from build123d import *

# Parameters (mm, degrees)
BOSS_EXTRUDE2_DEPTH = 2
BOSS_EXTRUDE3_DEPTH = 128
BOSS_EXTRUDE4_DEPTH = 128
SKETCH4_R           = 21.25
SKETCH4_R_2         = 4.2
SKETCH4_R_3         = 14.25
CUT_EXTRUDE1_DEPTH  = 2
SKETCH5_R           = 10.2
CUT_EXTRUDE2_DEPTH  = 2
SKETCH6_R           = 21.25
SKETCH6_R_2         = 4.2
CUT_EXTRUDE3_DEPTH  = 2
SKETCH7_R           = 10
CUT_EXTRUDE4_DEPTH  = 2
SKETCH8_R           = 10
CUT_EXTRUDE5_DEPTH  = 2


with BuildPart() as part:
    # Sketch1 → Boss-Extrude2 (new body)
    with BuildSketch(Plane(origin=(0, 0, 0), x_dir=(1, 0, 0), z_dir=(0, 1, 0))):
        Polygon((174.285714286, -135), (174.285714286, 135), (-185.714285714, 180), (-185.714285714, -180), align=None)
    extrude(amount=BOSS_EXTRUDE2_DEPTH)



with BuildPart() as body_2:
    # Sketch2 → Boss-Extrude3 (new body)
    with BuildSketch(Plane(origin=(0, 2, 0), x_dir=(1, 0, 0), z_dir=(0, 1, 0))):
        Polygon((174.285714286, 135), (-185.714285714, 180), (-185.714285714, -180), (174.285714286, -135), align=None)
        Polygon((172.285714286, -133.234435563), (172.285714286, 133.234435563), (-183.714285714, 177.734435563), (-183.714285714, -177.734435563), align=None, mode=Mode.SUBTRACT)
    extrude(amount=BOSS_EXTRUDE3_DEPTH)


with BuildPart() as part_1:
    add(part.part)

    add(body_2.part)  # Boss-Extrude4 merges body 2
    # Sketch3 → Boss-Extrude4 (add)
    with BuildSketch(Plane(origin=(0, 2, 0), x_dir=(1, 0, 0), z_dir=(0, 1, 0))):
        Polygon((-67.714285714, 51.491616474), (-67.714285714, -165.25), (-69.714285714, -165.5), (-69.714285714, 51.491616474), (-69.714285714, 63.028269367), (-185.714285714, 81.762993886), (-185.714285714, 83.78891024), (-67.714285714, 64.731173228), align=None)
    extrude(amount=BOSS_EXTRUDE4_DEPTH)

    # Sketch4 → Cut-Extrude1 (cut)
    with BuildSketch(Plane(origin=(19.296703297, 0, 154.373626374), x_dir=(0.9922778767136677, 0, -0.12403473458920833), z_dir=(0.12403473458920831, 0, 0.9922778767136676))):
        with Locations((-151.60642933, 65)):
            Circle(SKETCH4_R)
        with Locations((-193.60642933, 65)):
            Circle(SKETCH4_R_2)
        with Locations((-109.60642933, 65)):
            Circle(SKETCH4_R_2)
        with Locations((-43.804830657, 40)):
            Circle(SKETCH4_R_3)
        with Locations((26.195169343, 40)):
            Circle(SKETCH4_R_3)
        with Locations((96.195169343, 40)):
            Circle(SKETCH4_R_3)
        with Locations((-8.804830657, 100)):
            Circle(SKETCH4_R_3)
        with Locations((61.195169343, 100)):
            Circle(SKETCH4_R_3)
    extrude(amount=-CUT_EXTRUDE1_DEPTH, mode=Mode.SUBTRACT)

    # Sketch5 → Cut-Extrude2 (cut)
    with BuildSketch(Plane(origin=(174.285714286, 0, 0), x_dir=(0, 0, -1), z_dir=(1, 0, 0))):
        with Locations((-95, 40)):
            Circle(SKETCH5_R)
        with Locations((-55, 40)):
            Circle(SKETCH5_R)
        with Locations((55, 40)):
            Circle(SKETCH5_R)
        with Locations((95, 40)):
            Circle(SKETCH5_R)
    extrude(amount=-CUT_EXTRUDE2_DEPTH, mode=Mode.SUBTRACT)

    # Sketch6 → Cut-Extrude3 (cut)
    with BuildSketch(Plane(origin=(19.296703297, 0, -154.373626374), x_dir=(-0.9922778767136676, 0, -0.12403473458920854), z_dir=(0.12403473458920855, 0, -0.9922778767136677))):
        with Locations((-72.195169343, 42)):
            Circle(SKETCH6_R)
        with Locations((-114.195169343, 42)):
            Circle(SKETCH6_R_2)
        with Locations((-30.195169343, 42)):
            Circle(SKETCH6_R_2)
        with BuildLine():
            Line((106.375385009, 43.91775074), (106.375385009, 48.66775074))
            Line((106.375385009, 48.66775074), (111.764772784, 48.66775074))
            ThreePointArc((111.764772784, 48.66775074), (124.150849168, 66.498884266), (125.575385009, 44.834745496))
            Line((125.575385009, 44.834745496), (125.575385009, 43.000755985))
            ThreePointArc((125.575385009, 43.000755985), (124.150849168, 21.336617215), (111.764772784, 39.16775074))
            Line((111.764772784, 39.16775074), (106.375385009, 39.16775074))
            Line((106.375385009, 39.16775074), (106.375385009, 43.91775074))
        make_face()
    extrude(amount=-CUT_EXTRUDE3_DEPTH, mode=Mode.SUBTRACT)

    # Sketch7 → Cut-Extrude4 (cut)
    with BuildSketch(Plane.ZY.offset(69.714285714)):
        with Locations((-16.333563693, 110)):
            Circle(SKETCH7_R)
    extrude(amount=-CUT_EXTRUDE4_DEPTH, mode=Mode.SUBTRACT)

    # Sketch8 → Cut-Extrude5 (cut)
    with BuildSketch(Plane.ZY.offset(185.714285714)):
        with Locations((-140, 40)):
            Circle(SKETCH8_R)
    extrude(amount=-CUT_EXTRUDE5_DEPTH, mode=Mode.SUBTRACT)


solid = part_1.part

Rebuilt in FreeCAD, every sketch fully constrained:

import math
import FreeCAD as App
import Part
import Sketcher
from FreeCAD import Vector
Q = App.Units.Quantity

doc = App.newDocument("Part")
body = doc.addObject("PartDesign::Body", "Body")

# Sketch on XZ plane
sketch1 = doc.addObject("Sketcher::SketchObject", "Sketch")
body.addObject(sketch1)
sketch1.AttachmentSupport = (doc.XZ_Plane, [""])
sketch1.MapMode = "FlatFace"
sketch1.addGeometry(Part.LineSegment(Vector(174, 135, 0), Vector(174, -135, 0)), False)
sketch1.addGeometry(Part.LineSegment(Vector(174, -135, 0), Vector(-186, -180, 0)), False)
sketch1.addGeometry(Part.LineSegment(Vector(-186, -180, 0), Vector(-186, 180, 0)), False)
sketch1.addGeometry(Part.LineSegment(Vector(-186, 180, 0), Vector(174, 135, 0)), False)
sketch1.addConstraint(Sketcher.Constraint("Coincident", 0, 2, 1, 1))
sketch1.addConstraint(Sketcher.Constraint("Coincident", 1, 2, 2, 1))
sketch1.addConstraint(Sketcher.Constraint("Coincident", 2, 2, 3, 1))
sketch1.addConstraint(Sketcher.Constraint("Coincident", 3, 2, 0, 1))
sketch1.addConstraint(Sketcher.Constraint("Vertical", 0))
sketch1.addConstraint(Sketcher.Constraint("Vertical", 2))
sketch1.addConstraint(Sketcher.Constraint("Equal", 1, 3))
sketch1.addConstraint(Sketcher.Constraint("DistanceY", 0, 2, 0, 1, Q("270 mm")))
sketch1.addConstraint(Sketcher.Constraint("DistanceY", 2, 1, 2, 2, Q("360 mm")))
sketch1.addConstraint(Sketcher.Constraint("DistanceY", 0, 2, -1, 1, Q("135 mm")))
sketch1.addConstraint(Sketcher.Constraint("DistanceX", 1, 2, 0, 2, Q("360 mm")))
sketch1.addConstraint(Sketcher.Constraint("DistanceX", -1, 1, 0, 2, Q("174.285714 mm")))
pad1 = doc.addObject("PartDesign::Pad", "Pad")
body.addObject(pad1)
pad1.Profile = sketch1
pad1.Length = 2
pad1.Reversed = True
body2 = doc.addObject("PartDesign::Body", "Body001")

# Sketch on XZ plane
sketch2 = doc.addObject("Sketcher::SketchObject", "Sketch001")
body2.addObject(sketch2)
sketch2.AttachmentSupport = (doc.getObject("XZ_Plane001"), [""])
sketch2.MapMode = "FlatFace"
sketch2.AttachmentOffset = App.Placement(Vector(0, 0, -2), App.Rotation())
sketch2.addGeometry(Part.LineSegment(Vector(174, -135, 0), Vector(-186, -180, 0)), False)
sketch2.addGeometry(Part.LineSegment(Vector(-186, -180, 0), Vector(-186, 180, 0)), False)
sketch2.addGeometry(Part.LineSegment(Vector(-186, 180, 0), Vector(174, 135, 0)), False)
sketch2.addGeometry(Part.LineSegment(Vector(174, 135, 0), Vector(174, -135, 0)), False)
sketch2.addGeometry(Part.LineSegment(Vector(172, -133, 0), Vector(172, 133, 0)), False)
sketch2.addGeometry(Part.LineSegment(Vector(172, 133, 0), Vector(-184, 178, 0)), False)
sketch2.addGeometry(Part.LineSegment(Vector(-184, 178, 0), Vector(-184, -178, 0)), False)
sketch2.addGeometry(Part.LineSegment(Vector(-184, -178, 0), Vector(172, -133, 0)), False)
sketch2.addConstraint(Sketcher.Constraint("Coincident", 0, 2, 1, 1))
sketch2.addConstraint(Sketcher.Constraint("Coincident", 1, 2, 2, 1))
sketch2.addConstraint(Sketcher.Constraint("Coincident", 2, 2, 3, 1))
sketch2.addConstraint(Sketcher.Constraint("Coincident", 3, 2, 0, 1))
sketch2.addConstraint(Sketcher.Constraint("Coincident", 4, 2, 5, 1))
sketch2.addConstraint(Sketcher.Constraint("Coincident", 5, 2, 6, 1))
sketch2.addConstraint(Sketcher.Constraint("Coincident", 6, 2, 7, 1))
sketch2.addConstraint(Sketcher.Constraint("Coincident", 7, 2, 4, 1))
sketch2.addConstraint(Sketcher.Constraint("Vertical", 1))
sketch2.addConstraint(Sketcher.Constraint("Vertical", 3))
sketch2.addConstraint(Sketcher.Constraint("Vertical", 4))
sketch2.addConstraint(Sketcher.Constraint("Vertical", 6))
sketch2.addConstraint(Sketcher.Constraint("Parallel", 2, 5))
sketch2.addConstraint(Sketcher.Constraint("Parallel", 0, 7))
sketch2.addConstraint(Sketcher.Constraint("Equal", 0, 2))
sketch2.addConstraint(Sketcher.Constraint("DistanceY", 1, 1, 1, 2, Q("360 mm")))
sketch2.addConstraint(Sketcher.Constraint("DistanceY", 3, 2, 3, 1, Q("270 mm")))
sketch2.addConstraint(Sketcher.Constraint("DistanceY", 0, 2, -1, 1, Q("180 mm")))
sketch2.addConstraint(Sketcher.Constraint("DistanceX", 1, 2, 2, 2, Q("360 mm")))
sketch2.addConstraint(Sketcher.Constraint("DistanceX", 4, 2, 2, 2, Q("2 mm")))
sketch2.addConstraint(Sketcher.Constraint("DistanceX", 1, 2, 5, 2, Q("2 mm")))
sketch2.addConstraint(Sketcher.Constraint("DistanceY", 4, 1, 4, 2, Q("266.468871 mm")))
sketch2.addConstraint(Sketcher.Constraint("DistanceX", 0, 2, -1, 1, Q("185.714286 mm")))
sketch2.addConstraint(Sketcher.Constraint("DistanceY", -1, 1, 4, 2, Q("133.234436 mm")))
pad2 = doc.addObject("PartDesign::Pad", "Pad001")
body2.addObject(pad2)
pad2.Profile = sketch2
pad2.Length = 128
pad2.Reversed = True
doc.recompute()

boolean = doc.addObject("PartDesign::Boolean", "Boolean")
body.addObject(boolean)
boolean.Type = "Fuse"
boolean.addObjects([body2])

# Sketch on XZ plane
sketch3 = doc.addObject("Sketcher::SketchObject", "Sketch002")
body.addObject(sketch3)
sketch3.AttachmentSupport = (doc.XZ_Plane, [""])
sketch3.MapMode = "FlatFace"
sketch3.AttachmentOffset = App.Placement(Vector(0, 0, -2), App.Rotation())
sketch3.addGeometry(Part.LineSegment(Vector(-67.7, 165.2, 0), Vector(-67.7, -64.7, 0)), False)
sketch3.addGeometry(Part.LineSegment(Vector(-67.7, -64.7, 0), Vector(-185.7, -83.8, 0)), False)
sketch3.addGeometry(Part.LineSegment(Vector(-185.7, -83.8, 0), Vector(-185.7, -81.8, 0)), False)
sketch3.addGeometry(Part.LineSegment(Vector(-185.7, -81.8, 0), Vector(-69.7, -63, 0)), False)
sketch3.addGeometry(Part.LineSegment(Vector(-69.7, -63, 0), Vector(-69.7, 165.5, 0)), False)
sketch3.addGeometry(Part.LineSegment(Vector(-69.7, 165.5, 0), Vector(-67.7, 165.2, 0)), False)
sketch3.addConstraint(Sketcher.Constraint("Coincident", 0, 2, 1, 1))
sketch3.addConstraint(Sketcher.Constraint("Coincident", 1, 2, 2, 1))
sketch3.addConstraint(Sketcher.Constraint("Coincident", 2, 2, 3, 1))
sketch3.addConstraint(Sketcher.Constraint("Coincident", 3, 2, 4, 1))
sketch3.addConstraint(Sketcher.Constraint("Coincident", 4, 2, 5, 1))
sketch3.addConstraint(Sketcher.Constraint("Coincident", 5, 2, 0, 1))
sketch3.addConstraint(Sketcher.Constraint("Vertical", 0))
sketch3.addConstraint(Sketcher.Constraint("Vertical", 2))
sketch3.addConstraint(Sketcher.Constraint("Vertical", 4))
sketch3.addConstraint(Sketcher.Constraint("Parallel", 1, 3))
sketch3.addConstraint(Sketcher.Constraint("DistanceX", 1, 2, 0, 2, Q("118 mm")))
sketch3.addConstraint(Sketcher.Constraint("DistanceX", 3, 2, 0, 2, Q("2 mm")))
sketch3.addConstraint(Sketcher.Constraint("DistanceY", -1, 1, 4, 2, Q("165.5 mm")))
sketch3.addConstraint(Sketcher.Constraint("DistanceY", -1, 1, 5, 2, Q("165.25 mm")))
sketch3.addConstraint(Sketcher.Constraint("DistanceY", 4, 1, 4, 2, Q("228.528269 mm")))
sketch3.addConstraint(Sketcher.Constraint("Distance", 3, Q("117.503148 mm")))
sketch3.addConstraint(Sketcher.Constraint("DistanceY", 0, 2, 0, 1, Q("229.981173 mm")))
sketch3.addConstraint(Sketcher.Constraint("DistanceX", 0, 2, -1, 1, Q("67.714286 mm")))
pad3 = doc.addObject("PartDesign::Pad", "Pad002")
body.addObject(pad3)
pad3.Profile = sketch3
pad3.Length = 128
pad3.Reversed = True

# Sketch on an angled plane
sketch4 = doc.addObject("Sketcher::SketchObject", "Sketch003")
body.addObject(sketch4)
sketch4.Placement = App.Placement(Vector(19.296703, 0, 154.373626), App.Rotation(Vector(0.992277877, 0, -0.124034735), Vector(0, 1.000000001, 0), Vector(0.124034735, 0, 0.992277877), "ZXY"))
sketch4.addGeometry(Part.Circle(Vector(-151.6, 65, 0), Vector(0, 0, 1), 21.2), False)
sketch4.addGeometry(Part.Circle(Vector(-193.6, 65, 0), Vector(0, 0, 1), 4.2), False)
sketch4.addGeometry(Part.Circle(Vector(-109.6, 65, 0), Vector(0, 0, 1), 4.2), False)
sketch4.addGeometry(Part.Circle(Vector(-43.8, 40, 0), Vector(0, 0, 1), 14.2), False)
sketch4.addGeometry(Part.Circle(Vector(26.2, 40, 0), Vector(0, 0, 1), 14.2), False)
sketch4.addGeometry(Part.Circle(Vector(96.2, 40, 0), Vector(0, 0, 1), 14.2), False)
sketch4.addGeometry(Part.Circle(Vector(-8.8, 100, 0), Vector(0, 0, 1), 14.2), False)
sketch4.addGeometry(Part.Circle(Vector(61.2, 100, 0), Vector(0, 0, 1), 14.2), False)
sketch4.addConstraint(Sketcher.Constraint("Equal", 1, 2))
sketch4.addConstraint(Sketcher.Constraint("Equal", 3, 4))
sketch4.addConstraint(Sketcher.Constraint("Equal", 4, 5))
sketch4.addConstraint(Sketcher.Constraint("Equal", 5, 6))
sketch4.addConstraint(Sketcher.Constraint("Equal", 6, 7))
sketch4.addConstraint(Sketcher.Constraint("Horizontal", 0, 3, 1, 3))
sketch4.addConstraint(Sketcher.Constraint("Horizontal", 1, 3, 2, 3))
sketch4.addConstraint(Sketcher.Constraint("Horizontal", 3, 3, 4, 3))
sketch4.addConstraint(Sketcher.Constraint("Horizontal", 4, 3, 5, 3))
sketch4.addConstraint(Sketcher.Constraint("Horizontal", 6, 3, 7, 3))
sketch4.addConstraint(Sketcher.Constraint("Diameter", 0, Q("42.5 mm")))
sketch4.addConstraint(Sketcher.Constraint("Diameter", 1, Q("8.4 mm")))
sketch4.addConstraint(Sketcher.Constraint("Diameter", 3, Q("28.5 mm")))
sketch4.addConstraint(Sketcher.Constraint("DistanceY", -1, 1, 0, 3, Q("65 mm")))
sketch4.addConstraint(Sketcher.Constraint("DistanceY", -1, 1, 3, 3, Q("40 mm")))
sketch4.addConstraint(Sketcher.Constraint("DistanceY", -1, 1, 6, 3, Q("100 mm")))
sketch4.addConstraint(Sketcher.Constraint("DistanceX", 1, 3, 0, 3, Q("42 mm")))
sketch4.addConstraint(Sketcher.Constraint("DistanceX", 0, 3, 2, 3, Q("42 mm")))
sketch4.addConstraint(Sketcher.Constraint("DistanceX", 3, 3, 4, 3, Q("70 mm")))
sketch4.addConstraint(Sketcher.Constraint("DistanceX", 4, 3, 5, 3, Q("70 mm")))
sketch4.addConstraint(Sketcher.Constraint("DistanceX", 3, 3, 6, 3, Q("35 mm")))
sketch4.addConstraint(Sketcher.Constraint("DistanceX", 4, 3, 7, 3, Q("35 mm")))
sketch4.addConstraint(Sketcher.Constraint("DistanceX", 2, 3, 3, 3, Q("65.801599 mm")))
sketch4.addConstraint(Sketcher.Constraint("DistanceX", 0, 3, -1, 1, Q("151.606429 mm")))
pocket1 = doc.addObject("PartDesign::Pocket", "Pocket")
body.addObject(pocket1)
pocket1.Profile = sketch4
pocket1.Length = 2

# Sketch on YZ plane
sketch5 = doc.addObject("Sketcher::SketchObject", "Sketch004")
body.addObject(sketch5)
sketch5.AttachmentSupport = (doc.YZ_Plane, [""])
sketch5.MapMode = "FlatFace"
sketch5.AttachmentOffset = App.Placement(Vector(0, 0, 174.285714), App.Rotation())
sketch5.addGeometry(Part.Circle(Vector(40, 95, 0), Vector(0, 0, 1), 10), False)
sketch5.addGeometry(Part.Circle(Vector(40, 55, 0), Vector(0, 0, 1), 10), False)
sketch5.addGeometry(Part.Circle(Vector(40, -55, 0), Vector(0, 0, 1), 10), False)
sketch5.addGeometry(Part.Circle(Vector(40, -95, 0), Vector(0, 0, 1), 10), False)
sketch5.addConstraint(Sketcher.Constraint("Equal", 0, 1))
sketch5.addConstraint(Sketcher.Constraint("Equal", 1, 2))
sketch5.addConstraint(Sketcher.Constraint("Equal", 2, 3))
sketch5.addConstraint(Sketcher.Constraint("Symmetric", 1, 3, 2, 3, -1))
sketch5.addConstraint(Sketcher.Constraint("Symmetric", 0, 3, 3, 3, -1))
sketch5.addConstraint(Sketcher.Constraint("Vertical", 0, 3, 1, 3))
sketch5.addConstraint(Sketcher.Constraint("Diameter", 0, Q("20.4 mm")))
sketch5.addConstraint(Sketcher.Constraint("DistanceX", -1, 1, 0, 3, Q("40 mm")))
sketch5.addConstraint(Sketcher.Constraint("DistanceY", -1, 1, 0, 3, Q("95 mm")))
sketch5.addConstraint(Sketcher.Constraint("DistanceY", -1, 1, 1, 3, Q("55 mm")))
pocket2 = doc.addObject("PartDesign::Pocket", "Pocket001")
body.addObject(pocket2)
pocket2.Profile = sketch5
pocket2.Length = 2

# Sketch on an angled plane
sketch6 = doc.addObject("Sketcher::SketchObject", "Sketch005")
body.addObject(sketch6)
sketch6.Placement = App.Placement(Vector(19.296703, 0, -154.373626), App.Rotation(Vector(-0.992277877, 0, -0.124034735), Vector(0, 1.000000001, 0), Vector(0.124034735, 0, -0.992277877), "ZXY"))
sketch6.addGeometry(Part.Circle(Vector(-72.2, 42, 0), Vector(0, 0, 1), 21.2), False)
sketch6.addGeometry(Part.Circle(Vector(-114.2, 42, 0), Vector(0, 0, 1), 4.2), False)
sketch6.addGeometry(Part.Circle(Vector(-30.2, 42, 0), Vector(0, 0, 1), 4.2), False)
sketch6.addGeometry(Part.LineSegment(Vector(111.8, 48.7, 0), Vector(106.4, 48.7, 0)), False)
sketch6.addGeometry(Part.LineSegment(Vector(106.4, 48.7, 0), Vector(106.4, 39.2, 0)), False)
sketch6.addGeometry(Part.LineSegment(Vector(106.4, 39.2, 0), Vector(111.8, 39.2, 0)), False)
sketch6.addGeometry(Part.ArcOfCircle(Part.Circle(Vector(121.1, 32.4, 0), Vector(0, 0, 1), 11.5), math.radians(144), math.radians(427)), False)
sketch6.addGeometry(Part.LineSegment(Vector(125.6, 43, 0), Vector(125.6, 44.8, 0)), False)
sketch6.addGeometry(Part.ArcOfCircle(Part.Circle(Vector(121.1, 55.4, 0), Vector(0, 0, 1), 11.5), math.radians(-67), math.radians(216)), False)
sketch6.addConstraint(Sketcher.Constraint("Coincident", 3, 2, 4, 1))
sketch6.addConstraint(Sketcher.Constraint("Coincident", 4, 2, 5, 1))
sketch6.addConstraint(Sketcher.Constraint("Coincident", 5, 2, 6, 1))
sketch6.addConstraint(Sketcher.Constraint("Coincident", 6, 2, 7, 1))
sketch6.addConstraint(Sketcher.Constraint("Coincident", 7, 2, 8, 1))
sketch6.addConstraint(Sketcher.Constraint("Coincident", 8, 2, 3, 1))
sketch6.addConstraint(Sketcher.Constraint("Horizontal", 3))
sketch6.addConstraint(Sketcher.Constraint("Vertical", 4))
sketch6.addConstraint(Sketcher.Constraint("Horizontal", 5))
sketch6.addConstraint(Sketcher.Constraint("Vertical", 7))
sketch6.addConstraint(Sketcher.Constraint("Equal", 1, 2))
sketch6.addConstraint(Sketcher.Constraint("Equal", 6, 8))
sketch6.addConstraint(Sketcher.Constraint("Horizontal", 0, 3, 1, 3))
sketch6.addConstraint(Sketcher.Constraint("Horizontal", 1, 3, 2, 3))
sketch6.addConstraint(Sketcher.Constraint("Vertical", 6, 3, 8, 3))
sketch6.addConstraint(Sketcher.Constraint("Vertical", 5, 2, 8, 2))
sketch6.addConstraint(Sketcher.Constraint("Diameter", 0, Q("42.5 mm")))
sketch6.addConstraint(Sketcher.Constraint("Diameter", 1, Q("8.4 mm")))
sketch6.addConstraint(Sketcher.Constraint("Radius", 6, Q("11.5 mm")))
sketch6.addConstraint(Sketcher.Constraint("DistanceY", 4, 2, 4, 1, Q("9.5 mm")))
sketch6.addConstraint(Sketcher.Constraint("DistanceY", -1, 1, 0, 3, Q("42 mm")))
sketch6.addConstraint(Sketcher.Constraint("DistanceX", 1, 3, 0, 3, Q("42 mm")))
sketch6.addConstraint(Sketcher.Constraint("DistanceX", 0, 3, 2, 3, Q("42 mm")))
sketch6.addConstraint(Sketcher.Constraint("DistanceY", 6, 3, 8, 3, Q("23 mm")))
sketch6.addConstraint(Sketcher.Constraint("DistanceX", 3, 2, 8, 3, Q("14.7 mm")))
sketch6.addConstraint(Sketcher.Constraint("DistanceX", 6, 3, 6, 2, Q("4.5 mm")))
sketch6.addConstraint(Sketcher.Constraint("DistanceX", 0, 3, -1, 1, Q("72.195169 mm")))
sketch6.addConstraint(Sketcher.Constraint("DistanceY", -1, 1, 6, 3, Q("32.417751 mm")))
sketch6.addConstraint(Sketcher.Constraint("DistanceX", -1, 1, 6, 3, Q("121.075385 mm")))
pocket3 = doc.addObject("PartDesign::Pocket", "Pocket002")
body.addObject(pocket3)
pocket3.Profile = sketch6
pocket3.Length = 2

# Sketch on YZ plane
sketch7 = doc.addObject("Sketcher::SketchObject", "Sketch006")
body.addObject(sketch7)
sketch7.AttachmentSupport = (doc.YZ_Plane, [""])
sketch7.MapMode = "FlatFace"
sketch7.AttachmentOffset = App.Placement(Vector(0, 0, -69.714286), App.Rotation())
sketch7.addGeometry(Part.Circle(Vector(110, -16, 0), Vector(0, 0, 1), 10), False)
sketch7.addConstraint(Sketcher.Constraint("Diameter", 0, Q("20 mm")))
sketch7.addConstraint(Sketcher.Constraint("DistanceX", -1, 1, 0, 3, Q("110 mm")))
sketch7.addConstraint(Sketcher.Constraint("DistanceY", 0, 3, -1, 1, Q("16.333564 mm")))
pocket4 = doc.addObject("PartDesign::Pocket", "Pocket003")
body.addObject(pocket4)
pocket4.Profile = sketch7
pocket4.Length = 2
pocket4.Reversed = True

# Sketch on YZ plane
sketch8 = doc.addObject("Sketcher::SketchObject", "Sketch007")
body.addObject(sketch8)
sketch8.AttachmentSupport = (doc.YZ_Plane, [""])
sketch8.MapMode = "FlatFace"
sketch8.AttachmentOffset = App.Placement(Vector(0, 0, -185.714286), App.Rotation())
sketch8.addGeometry(Part.Circle(Vector(40, -140, 0), Vector(0, 0, 1), 10), False)
sketch8.addConstraint(Sketcher.Constraint("Diameter", 0, Q("20 mm")))
sketch8.addConstraint(Sketcher.Constraint("DistanceX", -1, 1, 0, 3, Q("40 mm")))
sketch8.addConstraint(Sketcher.Constraint("DistanceY", 0, 3, -1, 1, Q("140 mm")))
pocket5 = doc.addObject("PartDesign::Pocket", "Pocket004")
body.addObject(pocket5)
pocket5.Profile = sketch8
pocket5.Length = 2
pocket5.Reversed = True

doc.recompute()
